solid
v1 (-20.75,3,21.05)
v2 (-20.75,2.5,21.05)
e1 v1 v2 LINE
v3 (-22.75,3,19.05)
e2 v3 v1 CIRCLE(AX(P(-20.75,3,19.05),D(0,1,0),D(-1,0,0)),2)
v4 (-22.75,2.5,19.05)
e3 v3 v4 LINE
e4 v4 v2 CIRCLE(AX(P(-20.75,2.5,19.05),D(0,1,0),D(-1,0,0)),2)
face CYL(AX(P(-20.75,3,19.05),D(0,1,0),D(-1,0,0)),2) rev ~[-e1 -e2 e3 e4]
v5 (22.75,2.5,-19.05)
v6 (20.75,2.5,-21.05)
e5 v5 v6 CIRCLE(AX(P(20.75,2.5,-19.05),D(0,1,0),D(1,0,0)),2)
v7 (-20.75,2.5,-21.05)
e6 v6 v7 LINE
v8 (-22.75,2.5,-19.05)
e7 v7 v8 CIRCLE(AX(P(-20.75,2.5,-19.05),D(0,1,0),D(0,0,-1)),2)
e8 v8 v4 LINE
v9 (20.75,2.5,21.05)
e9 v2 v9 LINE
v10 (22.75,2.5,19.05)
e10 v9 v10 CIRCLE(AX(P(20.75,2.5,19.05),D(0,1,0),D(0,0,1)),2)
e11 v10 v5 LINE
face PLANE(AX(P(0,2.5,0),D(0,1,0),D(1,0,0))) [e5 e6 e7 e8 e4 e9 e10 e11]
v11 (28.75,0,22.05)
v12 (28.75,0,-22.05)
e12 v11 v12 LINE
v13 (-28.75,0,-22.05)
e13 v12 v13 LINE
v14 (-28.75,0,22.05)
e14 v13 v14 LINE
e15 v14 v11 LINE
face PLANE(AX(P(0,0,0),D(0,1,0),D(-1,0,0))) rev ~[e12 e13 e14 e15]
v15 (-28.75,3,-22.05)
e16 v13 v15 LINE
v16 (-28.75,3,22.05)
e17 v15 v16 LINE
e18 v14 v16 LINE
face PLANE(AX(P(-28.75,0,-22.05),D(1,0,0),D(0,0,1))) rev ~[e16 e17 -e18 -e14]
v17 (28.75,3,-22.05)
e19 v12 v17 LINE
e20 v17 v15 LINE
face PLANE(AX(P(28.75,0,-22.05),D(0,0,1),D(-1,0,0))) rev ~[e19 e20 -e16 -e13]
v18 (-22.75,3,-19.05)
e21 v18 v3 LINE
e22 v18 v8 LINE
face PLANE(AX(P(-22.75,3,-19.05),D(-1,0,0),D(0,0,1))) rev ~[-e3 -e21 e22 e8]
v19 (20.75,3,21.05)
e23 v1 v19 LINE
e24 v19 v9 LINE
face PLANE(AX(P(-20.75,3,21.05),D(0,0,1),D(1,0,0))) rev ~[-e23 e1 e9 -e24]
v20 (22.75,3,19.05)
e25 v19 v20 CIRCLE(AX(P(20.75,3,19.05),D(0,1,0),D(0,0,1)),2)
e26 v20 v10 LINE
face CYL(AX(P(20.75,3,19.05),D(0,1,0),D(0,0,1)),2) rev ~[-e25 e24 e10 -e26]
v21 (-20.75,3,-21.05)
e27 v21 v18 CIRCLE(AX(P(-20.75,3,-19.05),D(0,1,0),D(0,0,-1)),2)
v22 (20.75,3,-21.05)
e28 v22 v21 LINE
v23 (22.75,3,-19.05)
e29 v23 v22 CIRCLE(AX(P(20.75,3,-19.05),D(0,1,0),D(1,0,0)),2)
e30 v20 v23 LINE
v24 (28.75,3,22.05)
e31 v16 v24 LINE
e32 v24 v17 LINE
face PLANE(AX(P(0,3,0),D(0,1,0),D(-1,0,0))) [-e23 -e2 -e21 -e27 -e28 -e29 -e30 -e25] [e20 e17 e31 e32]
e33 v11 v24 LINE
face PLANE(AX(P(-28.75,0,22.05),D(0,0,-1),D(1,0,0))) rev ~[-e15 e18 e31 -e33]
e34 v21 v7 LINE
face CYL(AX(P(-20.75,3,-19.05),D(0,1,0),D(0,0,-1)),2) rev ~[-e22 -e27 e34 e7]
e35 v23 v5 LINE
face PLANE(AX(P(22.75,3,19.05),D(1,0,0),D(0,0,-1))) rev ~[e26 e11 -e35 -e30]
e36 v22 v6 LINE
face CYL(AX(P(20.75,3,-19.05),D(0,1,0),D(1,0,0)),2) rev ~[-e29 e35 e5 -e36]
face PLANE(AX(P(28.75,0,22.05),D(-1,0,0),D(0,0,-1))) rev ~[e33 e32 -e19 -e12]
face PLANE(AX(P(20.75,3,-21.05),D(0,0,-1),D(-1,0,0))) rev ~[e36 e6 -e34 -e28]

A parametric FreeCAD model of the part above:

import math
import FreeCAD as App
import Part
import Sketcher
from FreeCAD import Vector

doc = App.newDocument("Part")
body = doc.addObject("PartDesign::Body", "Body")

sketch1 = body.newObject("Sketcher::SketchObject", "Sketch")
sketch1.AttachmentSupport = (doc.getObject("XZ_Plane"), [""])
sketch1.MapMode = "FlatFace"
sketch1.addGeometry([
    Part.LineSegment(Vector(28.75, 22.05, 0), Vector(28.75, -22.05, 0)),
    Part.LineSegment(Vector(28.75, -22.05, 0), Vector(-28.75, -22.05, 0)),
    Part.LineSegment(Vector(-28.75, -22.05, 0), Vector(-28.75, 22.05, 0)),
    Part.LineSegment(Vector(-28.75, 22.05, 0), Vector(28.75, 22.05, 0)),
], False)
sketch1.addConstraint([
    Sketcher.Constraint("Coincident", 0, 2, 1, 1),
    Sketcher.Constraint("Coincident", 1, 2, 2, 1),
    Sketcher.Constraint("Coincident", 2, 2, 3, 1),
    Sketcher.Constraint("Coincident", 3, 2, 0, 1),
    Sketcher.Constraint("Vertical", 0),
    Sketcher.Constraint("Horizontal", 1),
    Sketcher.Constraint("Vertical", 2),
    Sketcher.Constraint("Horizontal", 3),
    Sketcher.Constraint("Symmetric", 0, 2, 2, 2, -1, 1),
    Sketcher.Constraint("DistanceX", 1, 2, 1, 1, 57.5),
    Sketcher.Constraint("DistanceY", 0, 2, 0, 1, 44.1),
])
pad1 = body.newObject("PartDesign::Pad", "Pad")
pad1.Profile = sketch1
pad1.Length = 3
pad1.Reversed = True

sketch2 = body.newObject("Sketcher::SketchObject", "Sketch001")
sketch2.AttachmentSupport = (doc.getObject("XZ_Plane"), [""])
sketch2.MapMode = "FlatFace"
sketch2.AttachmentOffset = App.Placement(Vector(0, 0, -3), App.Rotation())
sketch2.addGeometry([
    Part.ArcOfCircle(Part.Circle(Vector(20.75, -19.05, 0), Vector(0, 0, 1), 2), math.radians(-90), math.radians(0)),
    Part.LineSegment(Vector(20.75, -21.05, 0), Vector(-20.75, -21.05, 0)),
    Part.ArcOfCircle(Part.Circle(Vector(-20.75, -19.05, 0), Vector(0, 0, 1), 2), math.radians(180), math.radians(270)),
    Part.LineSegment(Vector(-22.75, -19.05, 0), Vector(-22.75, 19.05, 0)),
    Part.ArcOfCircle(Part.Circle(Vector(-20.75, 19.05, 0), Vector(0, 0, 1), 2), math.radians(90), math.radians(180)),
    Part.LineSegment(Vector(-20.75, 21.05, 0), Vector(20.75, 21.05, 0)),
    Part.ArcOfCircle(Part.Circle(Vector(20.75, 19.05, 0), Vector(0, 0, 1), 2), math.radians(0), math.radians(90)),
    Part.LineSegment(Vector(22.75, 19.05, 0), Vector(22.75, -19.05, 0)),
], False)
sketch2.addConstraint([
    Sketcher.Constraint("Tangent", 0, 1, 1, 1),
    Sketcher.Constraint("Tangent", 1, 2, 2, 2),
    Sketcher.Constraint("Tangent", 2, 1, 3, 1),
    Sketcher.Constraint("Tangent", 3, 2, 4, 2),
    Sketcher.Constraint("Tangent", 4, 1, 5, 1),
    Sketcher.Constraint("Tangent", 5, 2, 6, 2),
    Sketcher.Constraint("Tangent", 6, 1, 7, 1),
    Sketcher.Constraint("Tangent", 7, 2, 0, 2),
    Sketcher.Constraint("Horizontal", 1),
    Sketcher.Constraint("Vertical", 3),
    Sketcher.Constraint("Horizontal", 5),
    Sketcher.Constraint("Vertical", 7),
    Sketcher.Constraint("Equal", 0, 2),
    Sketcher.Constraint("Equal", 2, 4),
    Sketcher.Constraint("Equal", 4, 6),
    Sketcher.Constraint("Symmetric", 0, 3, 4, 3, -1, 1),
    Sketcher.Constraint("Radius", 0, 2.0),
    Sketcher.Constraint("DistanceX", 1, 2, 1, 1, 41.5),
    Sketcher.Constraint("DistanceY", 3, 1, 3, 2, 38.1),
])
pocket1 = body.newObject("PartDesign::Pocket", "Pocket")
pocket1.Profile = sketch2
pocket1.Length = 0.5
pocket1.Reversed = True

doc.recompute()
